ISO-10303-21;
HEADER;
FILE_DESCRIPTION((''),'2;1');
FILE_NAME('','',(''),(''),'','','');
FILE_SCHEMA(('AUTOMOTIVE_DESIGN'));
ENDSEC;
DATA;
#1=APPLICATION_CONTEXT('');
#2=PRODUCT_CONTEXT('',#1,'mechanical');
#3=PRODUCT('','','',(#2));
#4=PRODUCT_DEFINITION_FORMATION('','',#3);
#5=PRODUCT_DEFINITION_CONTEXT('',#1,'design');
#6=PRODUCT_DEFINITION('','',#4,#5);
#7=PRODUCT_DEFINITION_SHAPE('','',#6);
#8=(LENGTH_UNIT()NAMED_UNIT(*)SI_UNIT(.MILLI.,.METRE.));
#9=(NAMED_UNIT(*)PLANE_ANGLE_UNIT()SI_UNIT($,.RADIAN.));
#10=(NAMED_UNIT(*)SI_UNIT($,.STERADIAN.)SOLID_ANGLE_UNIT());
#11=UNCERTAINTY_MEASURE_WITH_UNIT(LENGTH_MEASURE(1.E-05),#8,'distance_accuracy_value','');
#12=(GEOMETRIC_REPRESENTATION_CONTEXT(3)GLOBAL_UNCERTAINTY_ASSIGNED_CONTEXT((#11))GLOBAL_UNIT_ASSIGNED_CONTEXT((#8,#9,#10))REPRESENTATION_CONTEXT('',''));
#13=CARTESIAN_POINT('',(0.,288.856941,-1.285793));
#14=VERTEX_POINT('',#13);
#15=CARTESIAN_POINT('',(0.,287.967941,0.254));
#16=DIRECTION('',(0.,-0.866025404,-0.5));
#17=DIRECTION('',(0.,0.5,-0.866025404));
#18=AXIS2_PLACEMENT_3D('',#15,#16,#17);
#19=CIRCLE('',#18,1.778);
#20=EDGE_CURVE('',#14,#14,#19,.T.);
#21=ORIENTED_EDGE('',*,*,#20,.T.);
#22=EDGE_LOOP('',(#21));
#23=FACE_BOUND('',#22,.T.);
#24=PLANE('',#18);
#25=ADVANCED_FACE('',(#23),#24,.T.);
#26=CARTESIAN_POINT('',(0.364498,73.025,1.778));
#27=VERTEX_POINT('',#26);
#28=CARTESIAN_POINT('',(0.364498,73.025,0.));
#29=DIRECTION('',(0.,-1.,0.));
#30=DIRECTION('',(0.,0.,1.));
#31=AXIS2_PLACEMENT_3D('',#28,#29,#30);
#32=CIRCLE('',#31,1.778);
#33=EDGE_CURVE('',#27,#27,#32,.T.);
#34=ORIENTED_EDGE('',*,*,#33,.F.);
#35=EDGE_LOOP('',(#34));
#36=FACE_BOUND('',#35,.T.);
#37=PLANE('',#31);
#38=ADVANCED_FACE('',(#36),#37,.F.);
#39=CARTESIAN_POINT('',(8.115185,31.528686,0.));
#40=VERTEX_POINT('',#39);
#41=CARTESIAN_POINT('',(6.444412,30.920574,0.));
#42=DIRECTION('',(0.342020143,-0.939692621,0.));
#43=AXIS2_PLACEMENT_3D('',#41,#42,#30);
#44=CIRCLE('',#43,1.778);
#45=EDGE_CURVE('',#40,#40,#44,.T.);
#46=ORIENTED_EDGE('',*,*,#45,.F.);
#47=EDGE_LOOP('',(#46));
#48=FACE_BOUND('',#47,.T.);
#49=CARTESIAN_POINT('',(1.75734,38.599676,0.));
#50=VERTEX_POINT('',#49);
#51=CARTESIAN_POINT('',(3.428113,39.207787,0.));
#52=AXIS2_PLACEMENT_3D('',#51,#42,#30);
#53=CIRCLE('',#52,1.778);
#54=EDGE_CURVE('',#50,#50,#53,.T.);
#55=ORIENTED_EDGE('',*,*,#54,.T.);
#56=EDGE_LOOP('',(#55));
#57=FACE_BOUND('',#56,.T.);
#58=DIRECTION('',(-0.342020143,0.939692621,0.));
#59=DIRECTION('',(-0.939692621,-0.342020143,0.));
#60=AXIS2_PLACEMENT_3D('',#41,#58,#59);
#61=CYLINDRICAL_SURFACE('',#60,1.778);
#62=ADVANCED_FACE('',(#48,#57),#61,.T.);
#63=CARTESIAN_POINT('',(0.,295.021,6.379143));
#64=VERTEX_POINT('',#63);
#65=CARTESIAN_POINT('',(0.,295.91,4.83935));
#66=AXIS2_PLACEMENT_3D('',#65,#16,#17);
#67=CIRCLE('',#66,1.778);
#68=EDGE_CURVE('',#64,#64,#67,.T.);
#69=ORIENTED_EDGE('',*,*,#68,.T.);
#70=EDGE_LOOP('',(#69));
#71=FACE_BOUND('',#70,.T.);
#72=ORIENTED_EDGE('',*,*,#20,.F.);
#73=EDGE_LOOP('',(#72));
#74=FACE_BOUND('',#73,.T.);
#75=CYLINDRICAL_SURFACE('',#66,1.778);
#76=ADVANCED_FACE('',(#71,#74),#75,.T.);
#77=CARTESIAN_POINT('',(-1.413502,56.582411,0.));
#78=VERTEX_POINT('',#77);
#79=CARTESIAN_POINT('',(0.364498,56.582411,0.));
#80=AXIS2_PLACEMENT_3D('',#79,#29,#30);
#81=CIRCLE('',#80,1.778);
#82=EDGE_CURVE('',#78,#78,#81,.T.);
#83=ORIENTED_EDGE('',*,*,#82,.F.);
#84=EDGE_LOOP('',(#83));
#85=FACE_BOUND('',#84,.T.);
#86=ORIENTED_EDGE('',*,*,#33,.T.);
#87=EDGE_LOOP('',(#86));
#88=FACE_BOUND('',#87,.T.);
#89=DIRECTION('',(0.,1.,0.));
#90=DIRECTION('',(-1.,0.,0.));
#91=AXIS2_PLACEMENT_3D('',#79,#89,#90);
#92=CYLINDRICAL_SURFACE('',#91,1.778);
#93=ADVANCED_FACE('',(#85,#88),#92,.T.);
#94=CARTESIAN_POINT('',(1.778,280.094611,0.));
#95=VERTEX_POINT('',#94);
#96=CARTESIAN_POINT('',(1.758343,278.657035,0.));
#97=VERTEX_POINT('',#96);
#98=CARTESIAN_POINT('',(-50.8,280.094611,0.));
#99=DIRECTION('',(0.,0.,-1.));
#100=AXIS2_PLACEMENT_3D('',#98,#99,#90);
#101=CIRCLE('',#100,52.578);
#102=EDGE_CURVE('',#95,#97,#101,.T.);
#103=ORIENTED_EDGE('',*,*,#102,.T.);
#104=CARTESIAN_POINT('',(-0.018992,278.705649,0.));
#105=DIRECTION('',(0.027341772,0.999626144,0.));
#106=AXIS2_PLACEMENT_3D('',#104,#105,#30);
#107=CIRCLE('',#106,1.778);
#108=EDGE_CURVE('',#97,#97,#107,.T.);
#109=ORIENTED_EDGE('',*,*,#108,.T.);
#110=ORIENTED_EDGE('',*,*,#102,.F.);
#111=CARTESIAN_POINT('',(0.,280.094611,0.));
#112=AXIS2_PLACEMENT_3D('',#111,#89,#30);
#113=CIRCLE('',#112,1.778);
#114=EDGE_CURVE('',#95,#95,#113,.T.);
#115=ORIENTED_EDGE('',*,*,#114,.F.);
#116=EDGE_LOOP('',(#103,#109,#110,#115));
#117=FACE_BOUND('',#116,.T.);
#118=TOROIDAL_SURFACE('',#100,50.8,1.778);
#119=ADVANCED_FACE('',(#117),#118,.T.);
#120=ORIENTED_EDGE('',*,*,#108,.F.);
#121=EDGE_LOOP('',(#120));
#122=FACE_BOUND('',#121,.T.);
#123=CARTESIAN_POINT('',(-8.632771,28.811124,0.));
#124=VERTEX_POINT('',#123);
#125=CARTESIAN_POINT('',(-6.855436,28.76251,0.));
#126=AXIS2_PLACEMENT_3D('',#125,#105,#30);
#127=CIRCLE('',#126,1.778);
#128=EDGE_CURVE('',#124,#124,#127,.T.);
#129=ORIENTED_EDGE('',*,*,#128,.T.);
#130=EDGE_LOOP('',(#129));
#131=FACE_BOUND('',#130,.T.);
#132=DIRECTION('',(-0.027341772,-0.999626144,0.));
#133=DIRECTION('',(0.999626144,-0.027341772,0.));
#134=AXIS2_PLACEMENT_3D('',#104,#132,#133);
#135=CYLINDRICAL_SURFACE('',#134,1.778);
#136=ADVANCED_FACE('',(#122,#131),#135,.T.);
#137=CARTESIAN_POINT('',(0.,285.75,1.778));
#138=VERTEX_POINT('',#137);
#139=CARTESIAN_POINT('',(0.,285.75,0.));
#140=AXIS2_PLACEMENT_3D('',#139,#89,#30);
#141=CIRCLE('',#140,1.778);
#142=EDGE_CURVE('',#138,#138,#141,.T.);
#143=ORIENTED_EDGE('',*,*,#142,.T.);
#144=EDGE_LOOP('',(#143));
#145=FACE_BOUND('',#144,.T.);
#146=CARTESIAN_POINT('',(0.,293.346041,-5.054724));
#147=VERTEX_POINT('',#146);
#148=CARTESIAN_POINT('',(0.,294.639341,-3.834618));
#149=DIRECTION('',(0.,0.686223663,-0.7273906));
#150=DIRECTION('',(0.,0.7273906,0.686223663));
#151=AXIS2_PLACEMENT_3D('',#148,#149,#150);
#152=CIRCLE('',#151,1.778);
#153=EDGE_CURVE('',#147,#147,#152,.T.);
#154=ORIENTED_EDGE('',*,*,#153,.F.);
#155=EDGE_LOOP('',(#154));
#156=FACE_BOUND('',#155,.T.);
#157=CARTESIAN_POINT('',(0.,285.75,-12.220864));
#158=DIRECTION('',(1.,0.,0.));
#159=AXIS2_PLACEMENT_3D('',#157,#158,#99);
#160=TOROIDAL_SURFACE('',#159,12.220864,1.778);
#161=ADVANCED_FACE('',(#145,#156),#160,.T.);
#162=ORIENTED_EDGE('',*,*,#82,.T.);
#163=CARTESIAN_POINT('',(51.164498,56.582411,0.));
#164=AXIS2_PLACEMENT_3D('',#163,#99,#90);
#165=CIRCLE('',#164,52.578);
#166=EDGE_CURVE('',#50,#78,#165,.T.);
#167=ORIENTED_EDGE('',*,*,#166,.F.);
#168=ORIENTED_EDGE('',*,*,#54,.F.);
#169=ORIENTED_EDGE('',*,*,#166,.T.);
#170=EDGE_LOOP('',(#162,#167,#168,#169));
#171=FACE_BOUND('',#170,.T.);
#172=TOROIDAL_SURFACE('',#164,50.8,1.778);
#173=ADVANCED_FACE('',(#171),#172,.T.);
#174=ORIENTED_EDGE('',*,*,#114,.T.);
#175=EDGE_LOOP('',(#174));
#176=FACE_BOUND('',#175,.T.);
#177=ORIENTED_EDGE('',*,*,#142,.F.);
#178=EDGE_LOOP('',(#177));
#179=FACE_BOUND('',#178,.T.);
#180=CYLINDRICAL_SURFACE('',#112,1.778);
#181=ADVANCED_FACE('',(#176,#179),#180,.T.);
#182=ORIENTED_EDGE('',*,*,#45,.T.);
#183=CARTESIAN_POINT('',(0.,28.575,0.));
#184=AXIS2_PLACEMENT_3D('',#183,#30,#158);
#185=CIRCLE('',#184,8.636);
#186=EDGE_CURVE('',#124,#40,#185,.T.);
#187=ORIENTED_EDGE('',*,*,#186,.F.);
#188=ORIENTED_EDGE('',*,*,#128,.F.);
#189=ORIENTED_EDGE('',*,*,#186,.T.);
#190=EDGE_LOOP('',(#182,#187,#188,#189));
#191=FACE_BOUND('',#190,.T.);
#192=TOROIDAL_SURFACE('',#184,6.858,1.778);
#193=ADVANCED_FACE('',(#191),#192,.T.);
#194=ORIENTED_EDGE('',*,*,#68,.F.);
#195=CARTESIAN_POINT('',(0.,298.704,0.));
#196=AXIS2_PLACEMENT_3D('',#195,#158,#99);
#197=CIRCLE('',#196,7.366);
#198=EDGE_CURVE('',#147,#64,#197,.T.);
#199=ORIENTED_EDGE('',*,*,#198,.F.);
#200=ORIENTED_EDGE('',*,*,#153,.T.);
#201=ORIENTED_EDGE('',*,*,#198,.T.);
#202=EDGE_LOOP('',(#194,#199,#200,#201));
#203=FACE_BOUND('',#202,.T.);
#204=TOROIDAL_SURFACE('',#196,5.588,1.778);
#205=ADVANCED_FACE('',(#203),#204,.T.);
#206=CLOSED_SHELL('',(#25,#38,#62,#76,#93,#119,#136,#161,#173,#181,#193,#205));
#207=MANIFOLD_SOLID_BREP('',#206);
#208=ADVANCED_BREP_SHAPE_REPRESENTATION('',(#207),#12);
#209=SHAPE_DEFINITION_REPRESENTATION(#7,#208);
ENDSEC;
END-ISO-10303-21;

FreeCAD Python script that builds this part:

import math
import FreeCAD as App
import Part
import Sketcher
from FreeCAD import Vector
Q = App.Units.Quantity

doc = App.newDocument("Part")
body = doc.addObject("PartDesign::Body", "Body")

# Sketch on XZ plane
sketch1 = doc.addObject("Sketcher::SketchObject", "Sketch")
body.addObject(sketch1)
sketch1.AttachmentSupport = (doc.XZ_Plane, [""])
sketch1.MapMode = "FlatFace"
sketch1.AttachmentOffset = App.Placement(Vector(0, 0, -11.25 * 25.4), App.Rotation())
sketch1.addGeometry(Part.Circle(Vector(0, 0, 0), Vector(0, 0, 1), 1.8), False)
sketch1.addConstraint([
    Sketcher.Constraint("Coincident", 0, 3, -1, 1),
    Sketcher.Constraint("Diameter", 0, Q("0.14 in")),
])

# Sketch on XY plane
sketch2 = doc.addObject("Sketcher::SketchObject", "Sketch001")
body.addObject(sketch2)
sketch2.AttachmentSupport = (doc.XY_Plane, [""])
sketch2.MapMode = "FlatFace"
sketch2.addGeometry([
    Part.LineSegment(Vector(0, 285.8, 0), Vector(0, 280.1, 0)),  # 0
    Part.ArcOfCircle(Part.Circle(Vector(-50.8, 280.1, 0), Vector(0, 0, 1), 50.8), math.radians(-1.57), math.radians(0)),  # 1
    Part.LineSegment(Vector(0, 278.7, 0), Vector(-6.9, 28.8, 0)),  # 2
    Part.ArcOfCircle(Part.Circle(Vector(0, 28.6, 0), Vector(0, 0, 1), 6.9), math.radians(178), math.radians(380)),  # 3
    Part.LineSegment(Vector(6.4, 30.9, 0), Vector(3.4, 39.2, 0)),  # 4
    Part.ArcOfCircle(Part.Circle(Vector(51.2, 56.6, 0), Vector(0, 0, 1), 50.8), math.radians(-180), math.radians(-160)),  # 5
    Part.LineSegment(Vector(0.4, 56.6, 0), Vector(0.4, 73, 0)),  # 6
], False)
sketch2.addConstraint([
    Sketcher.Constraint("Tangent", 0, 2, 1, 2),
    Sketcher.Constraint("Tangent", 1, 1, 2, 1),
    Sketcher.Constraint("Tangent", 2, 2, 3, 1),
    Sketcher.Constraint("Tangent", 3, 2, 4, 1),
    Sketcher.Constraint("Tangent", 4, 2, 5, 2),
    Sketcher.Constraint("Tangent", 5, 1, 6, 1),
    Sketcher.Constraint("Vertical", 0),
    Sketcher.Constraint("Vertical", 6),
    Sketcher.Constraint("Equal", 1, 5),
    Sketcher.Constraint("PointOnObject", 3, 3, -2),
    Sketcher.Constraint("PointOnObject", 0, 1, -2),
    Sketcher.Constraint("Radius", 1, Q("2 in")),
    Sketcher.Constraint("Radius", 3, Q("0.27 in")),
    Sketcher.Constraint("Angle", 4, Q("110 deg")),
    Sketcher.Constraint("DistanceY", -1, 1, 0, 1, Q("11.25 in")),
    Sketcher.Constraint("DistanceY", 3, 3, 6, 2, Q("1.75 in")),
    Sketcher.Constraint("DistanceY", -1, 1, 3, 3, Q("1.125 in")),
    Sketcher.Constraint("DistanceY", 0, 2, 0, 1, 5.655389),
    Sketcher.Constraint("DistanceY", 6, 1, 6, 2, 16.442589),
])
doc.recompute()

additivepipe = doc.addObject("PartDesign::AdditivePipe", "AdditivePipe")
body.addObject(additivepipe)
additivepipe.Profile = sketch1
additivepipe.Spine = (sketch2, ["Edge1", "Edge2", "Edge3", "Edge4", "Edge5", "Edge6", "Edge7"])

# Sketch on XZ plane
sketch3 = doc.addObject("Sketcher::SketchObject", "Sketch002")
body.addObject(sketch3)
sketch3.AttachmentSupport = (doc.XZ_Plane, [""])
sketch3.MapMode = "FlatFace"
sketch3.AttachmentOffset = App.Placement(Vector(0, 0, -11.25 * 25.4), App.Rotation())
sketch3.addGeometry(Part.Circle(Vector(0, 0, 0), Vector(0, 0, 1), 1.8), False)
sketch3.addConstraint([
    Sketcher.Constraint("Coincident", 0, 3, -1, 1),
    Sketcher.Constraint("Diameter", 0, Q("0.14 in")),
])

# Sketch on YZ plane
sketch4 = doc.addObject("Sketcher::SketchObject", "Sketch003")
body.addObject(sketch4)
sketch4.AttachmentSupport = (doc.YZ_Plane, [""])
sketch4.MapMode = "FlatFace"
sketch4.addGeometry([
    Part.LineSegment(Vector(288, 0, 0), Vector(296, 5, 0)),
    Part.ArcOfCircle(Part.Circle(Vector(299, 0, 0), Vector(0, 0, 1), 6), math.radians(-137), math.radians(120)),
    Part.ArcOfCircle(Part.Circle(Vector(286, -12, 0), Vector(0, 0, 1), 12), math.radians(43), math.radians(90)),
], False)
sketch4.addConstraint([
    Sketcher.Constraint("Tangent", 0, 2, 1, 2),
    Sketcher.Constraint("Tangent", 1, 1, 2, 1),
    Sketcher.Constraint("PointOnObject", 1, 3, -1),
    Sketcher.Constraint("PointOnObject", 2, 2, -1),
    Sketcher.Constraint("Radius", 1, Q("0.22 in")),
    Sketcher.Constraint("Angle", 0, Q("30 deg")),
    Sketcher.Constraint("DistanceX", 2, 3, 0, 2, Q("0.4 in")),
    Sketcher.Constraint("DistanceX", 2, 2, 0, 2, Q("0.4 in")),
    Sketcher.Constraint("DistanceX", -1, 1, 1, 3, Q("11.76 in")),
    Sketcher.Constraint("DistanceY", -1, 1, 0, 1, Q("0.01 in")),
])
doc.recompute()

additivepipe2 = doc.addObject("PartDesign::AdditivePipe", "AdditivePipe001")
body.addObject(additivepipe2)
additivepipe2.Profile = sketch3
additivepipe2.Spine = (sketch4, ["Edge1", "Edge2", "Edge3"])

doc.recompute()
